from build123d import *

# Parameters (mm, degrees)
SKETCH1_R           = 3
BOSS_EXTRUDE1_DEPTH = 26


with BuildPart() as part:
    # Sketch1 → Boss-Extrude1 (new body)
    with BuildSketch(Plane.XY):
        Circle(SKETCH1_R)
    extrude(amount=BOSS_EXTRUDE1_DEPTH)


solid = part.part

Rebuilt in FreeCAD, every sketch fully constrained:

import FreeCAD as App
import Part
import Sketcher

V = App.Vector
Q = App.Units.Quantity

doc = App.newDocument("Part")
body = doc.addObject("PartDesign::Body", "Body")

sketch1 = body.newObject("Sketcher::SketchObject", "Sketch")
sketch1.AttachmentSupport = (doc.getObject("XY_Plane"), [""])
sketch1.MapMode = "FlatFace"
sketch1.addGeometry(Part.Circle(V(0, 0, 0), V(0, 0, 1), 3), False)
sketch1.addConstraint(Sketcher.Constraint("Coincident", 0, 3, -1, 1))
sketch1.addConstraint(Sketcher.Constraint("Diameter", 0, Q("6 mm")))
pad1 = body.newObject("PartDesign::Pad", "Pad")
pad1.Profile = sketch1
pad1.Length = 26

doc.recompute()
